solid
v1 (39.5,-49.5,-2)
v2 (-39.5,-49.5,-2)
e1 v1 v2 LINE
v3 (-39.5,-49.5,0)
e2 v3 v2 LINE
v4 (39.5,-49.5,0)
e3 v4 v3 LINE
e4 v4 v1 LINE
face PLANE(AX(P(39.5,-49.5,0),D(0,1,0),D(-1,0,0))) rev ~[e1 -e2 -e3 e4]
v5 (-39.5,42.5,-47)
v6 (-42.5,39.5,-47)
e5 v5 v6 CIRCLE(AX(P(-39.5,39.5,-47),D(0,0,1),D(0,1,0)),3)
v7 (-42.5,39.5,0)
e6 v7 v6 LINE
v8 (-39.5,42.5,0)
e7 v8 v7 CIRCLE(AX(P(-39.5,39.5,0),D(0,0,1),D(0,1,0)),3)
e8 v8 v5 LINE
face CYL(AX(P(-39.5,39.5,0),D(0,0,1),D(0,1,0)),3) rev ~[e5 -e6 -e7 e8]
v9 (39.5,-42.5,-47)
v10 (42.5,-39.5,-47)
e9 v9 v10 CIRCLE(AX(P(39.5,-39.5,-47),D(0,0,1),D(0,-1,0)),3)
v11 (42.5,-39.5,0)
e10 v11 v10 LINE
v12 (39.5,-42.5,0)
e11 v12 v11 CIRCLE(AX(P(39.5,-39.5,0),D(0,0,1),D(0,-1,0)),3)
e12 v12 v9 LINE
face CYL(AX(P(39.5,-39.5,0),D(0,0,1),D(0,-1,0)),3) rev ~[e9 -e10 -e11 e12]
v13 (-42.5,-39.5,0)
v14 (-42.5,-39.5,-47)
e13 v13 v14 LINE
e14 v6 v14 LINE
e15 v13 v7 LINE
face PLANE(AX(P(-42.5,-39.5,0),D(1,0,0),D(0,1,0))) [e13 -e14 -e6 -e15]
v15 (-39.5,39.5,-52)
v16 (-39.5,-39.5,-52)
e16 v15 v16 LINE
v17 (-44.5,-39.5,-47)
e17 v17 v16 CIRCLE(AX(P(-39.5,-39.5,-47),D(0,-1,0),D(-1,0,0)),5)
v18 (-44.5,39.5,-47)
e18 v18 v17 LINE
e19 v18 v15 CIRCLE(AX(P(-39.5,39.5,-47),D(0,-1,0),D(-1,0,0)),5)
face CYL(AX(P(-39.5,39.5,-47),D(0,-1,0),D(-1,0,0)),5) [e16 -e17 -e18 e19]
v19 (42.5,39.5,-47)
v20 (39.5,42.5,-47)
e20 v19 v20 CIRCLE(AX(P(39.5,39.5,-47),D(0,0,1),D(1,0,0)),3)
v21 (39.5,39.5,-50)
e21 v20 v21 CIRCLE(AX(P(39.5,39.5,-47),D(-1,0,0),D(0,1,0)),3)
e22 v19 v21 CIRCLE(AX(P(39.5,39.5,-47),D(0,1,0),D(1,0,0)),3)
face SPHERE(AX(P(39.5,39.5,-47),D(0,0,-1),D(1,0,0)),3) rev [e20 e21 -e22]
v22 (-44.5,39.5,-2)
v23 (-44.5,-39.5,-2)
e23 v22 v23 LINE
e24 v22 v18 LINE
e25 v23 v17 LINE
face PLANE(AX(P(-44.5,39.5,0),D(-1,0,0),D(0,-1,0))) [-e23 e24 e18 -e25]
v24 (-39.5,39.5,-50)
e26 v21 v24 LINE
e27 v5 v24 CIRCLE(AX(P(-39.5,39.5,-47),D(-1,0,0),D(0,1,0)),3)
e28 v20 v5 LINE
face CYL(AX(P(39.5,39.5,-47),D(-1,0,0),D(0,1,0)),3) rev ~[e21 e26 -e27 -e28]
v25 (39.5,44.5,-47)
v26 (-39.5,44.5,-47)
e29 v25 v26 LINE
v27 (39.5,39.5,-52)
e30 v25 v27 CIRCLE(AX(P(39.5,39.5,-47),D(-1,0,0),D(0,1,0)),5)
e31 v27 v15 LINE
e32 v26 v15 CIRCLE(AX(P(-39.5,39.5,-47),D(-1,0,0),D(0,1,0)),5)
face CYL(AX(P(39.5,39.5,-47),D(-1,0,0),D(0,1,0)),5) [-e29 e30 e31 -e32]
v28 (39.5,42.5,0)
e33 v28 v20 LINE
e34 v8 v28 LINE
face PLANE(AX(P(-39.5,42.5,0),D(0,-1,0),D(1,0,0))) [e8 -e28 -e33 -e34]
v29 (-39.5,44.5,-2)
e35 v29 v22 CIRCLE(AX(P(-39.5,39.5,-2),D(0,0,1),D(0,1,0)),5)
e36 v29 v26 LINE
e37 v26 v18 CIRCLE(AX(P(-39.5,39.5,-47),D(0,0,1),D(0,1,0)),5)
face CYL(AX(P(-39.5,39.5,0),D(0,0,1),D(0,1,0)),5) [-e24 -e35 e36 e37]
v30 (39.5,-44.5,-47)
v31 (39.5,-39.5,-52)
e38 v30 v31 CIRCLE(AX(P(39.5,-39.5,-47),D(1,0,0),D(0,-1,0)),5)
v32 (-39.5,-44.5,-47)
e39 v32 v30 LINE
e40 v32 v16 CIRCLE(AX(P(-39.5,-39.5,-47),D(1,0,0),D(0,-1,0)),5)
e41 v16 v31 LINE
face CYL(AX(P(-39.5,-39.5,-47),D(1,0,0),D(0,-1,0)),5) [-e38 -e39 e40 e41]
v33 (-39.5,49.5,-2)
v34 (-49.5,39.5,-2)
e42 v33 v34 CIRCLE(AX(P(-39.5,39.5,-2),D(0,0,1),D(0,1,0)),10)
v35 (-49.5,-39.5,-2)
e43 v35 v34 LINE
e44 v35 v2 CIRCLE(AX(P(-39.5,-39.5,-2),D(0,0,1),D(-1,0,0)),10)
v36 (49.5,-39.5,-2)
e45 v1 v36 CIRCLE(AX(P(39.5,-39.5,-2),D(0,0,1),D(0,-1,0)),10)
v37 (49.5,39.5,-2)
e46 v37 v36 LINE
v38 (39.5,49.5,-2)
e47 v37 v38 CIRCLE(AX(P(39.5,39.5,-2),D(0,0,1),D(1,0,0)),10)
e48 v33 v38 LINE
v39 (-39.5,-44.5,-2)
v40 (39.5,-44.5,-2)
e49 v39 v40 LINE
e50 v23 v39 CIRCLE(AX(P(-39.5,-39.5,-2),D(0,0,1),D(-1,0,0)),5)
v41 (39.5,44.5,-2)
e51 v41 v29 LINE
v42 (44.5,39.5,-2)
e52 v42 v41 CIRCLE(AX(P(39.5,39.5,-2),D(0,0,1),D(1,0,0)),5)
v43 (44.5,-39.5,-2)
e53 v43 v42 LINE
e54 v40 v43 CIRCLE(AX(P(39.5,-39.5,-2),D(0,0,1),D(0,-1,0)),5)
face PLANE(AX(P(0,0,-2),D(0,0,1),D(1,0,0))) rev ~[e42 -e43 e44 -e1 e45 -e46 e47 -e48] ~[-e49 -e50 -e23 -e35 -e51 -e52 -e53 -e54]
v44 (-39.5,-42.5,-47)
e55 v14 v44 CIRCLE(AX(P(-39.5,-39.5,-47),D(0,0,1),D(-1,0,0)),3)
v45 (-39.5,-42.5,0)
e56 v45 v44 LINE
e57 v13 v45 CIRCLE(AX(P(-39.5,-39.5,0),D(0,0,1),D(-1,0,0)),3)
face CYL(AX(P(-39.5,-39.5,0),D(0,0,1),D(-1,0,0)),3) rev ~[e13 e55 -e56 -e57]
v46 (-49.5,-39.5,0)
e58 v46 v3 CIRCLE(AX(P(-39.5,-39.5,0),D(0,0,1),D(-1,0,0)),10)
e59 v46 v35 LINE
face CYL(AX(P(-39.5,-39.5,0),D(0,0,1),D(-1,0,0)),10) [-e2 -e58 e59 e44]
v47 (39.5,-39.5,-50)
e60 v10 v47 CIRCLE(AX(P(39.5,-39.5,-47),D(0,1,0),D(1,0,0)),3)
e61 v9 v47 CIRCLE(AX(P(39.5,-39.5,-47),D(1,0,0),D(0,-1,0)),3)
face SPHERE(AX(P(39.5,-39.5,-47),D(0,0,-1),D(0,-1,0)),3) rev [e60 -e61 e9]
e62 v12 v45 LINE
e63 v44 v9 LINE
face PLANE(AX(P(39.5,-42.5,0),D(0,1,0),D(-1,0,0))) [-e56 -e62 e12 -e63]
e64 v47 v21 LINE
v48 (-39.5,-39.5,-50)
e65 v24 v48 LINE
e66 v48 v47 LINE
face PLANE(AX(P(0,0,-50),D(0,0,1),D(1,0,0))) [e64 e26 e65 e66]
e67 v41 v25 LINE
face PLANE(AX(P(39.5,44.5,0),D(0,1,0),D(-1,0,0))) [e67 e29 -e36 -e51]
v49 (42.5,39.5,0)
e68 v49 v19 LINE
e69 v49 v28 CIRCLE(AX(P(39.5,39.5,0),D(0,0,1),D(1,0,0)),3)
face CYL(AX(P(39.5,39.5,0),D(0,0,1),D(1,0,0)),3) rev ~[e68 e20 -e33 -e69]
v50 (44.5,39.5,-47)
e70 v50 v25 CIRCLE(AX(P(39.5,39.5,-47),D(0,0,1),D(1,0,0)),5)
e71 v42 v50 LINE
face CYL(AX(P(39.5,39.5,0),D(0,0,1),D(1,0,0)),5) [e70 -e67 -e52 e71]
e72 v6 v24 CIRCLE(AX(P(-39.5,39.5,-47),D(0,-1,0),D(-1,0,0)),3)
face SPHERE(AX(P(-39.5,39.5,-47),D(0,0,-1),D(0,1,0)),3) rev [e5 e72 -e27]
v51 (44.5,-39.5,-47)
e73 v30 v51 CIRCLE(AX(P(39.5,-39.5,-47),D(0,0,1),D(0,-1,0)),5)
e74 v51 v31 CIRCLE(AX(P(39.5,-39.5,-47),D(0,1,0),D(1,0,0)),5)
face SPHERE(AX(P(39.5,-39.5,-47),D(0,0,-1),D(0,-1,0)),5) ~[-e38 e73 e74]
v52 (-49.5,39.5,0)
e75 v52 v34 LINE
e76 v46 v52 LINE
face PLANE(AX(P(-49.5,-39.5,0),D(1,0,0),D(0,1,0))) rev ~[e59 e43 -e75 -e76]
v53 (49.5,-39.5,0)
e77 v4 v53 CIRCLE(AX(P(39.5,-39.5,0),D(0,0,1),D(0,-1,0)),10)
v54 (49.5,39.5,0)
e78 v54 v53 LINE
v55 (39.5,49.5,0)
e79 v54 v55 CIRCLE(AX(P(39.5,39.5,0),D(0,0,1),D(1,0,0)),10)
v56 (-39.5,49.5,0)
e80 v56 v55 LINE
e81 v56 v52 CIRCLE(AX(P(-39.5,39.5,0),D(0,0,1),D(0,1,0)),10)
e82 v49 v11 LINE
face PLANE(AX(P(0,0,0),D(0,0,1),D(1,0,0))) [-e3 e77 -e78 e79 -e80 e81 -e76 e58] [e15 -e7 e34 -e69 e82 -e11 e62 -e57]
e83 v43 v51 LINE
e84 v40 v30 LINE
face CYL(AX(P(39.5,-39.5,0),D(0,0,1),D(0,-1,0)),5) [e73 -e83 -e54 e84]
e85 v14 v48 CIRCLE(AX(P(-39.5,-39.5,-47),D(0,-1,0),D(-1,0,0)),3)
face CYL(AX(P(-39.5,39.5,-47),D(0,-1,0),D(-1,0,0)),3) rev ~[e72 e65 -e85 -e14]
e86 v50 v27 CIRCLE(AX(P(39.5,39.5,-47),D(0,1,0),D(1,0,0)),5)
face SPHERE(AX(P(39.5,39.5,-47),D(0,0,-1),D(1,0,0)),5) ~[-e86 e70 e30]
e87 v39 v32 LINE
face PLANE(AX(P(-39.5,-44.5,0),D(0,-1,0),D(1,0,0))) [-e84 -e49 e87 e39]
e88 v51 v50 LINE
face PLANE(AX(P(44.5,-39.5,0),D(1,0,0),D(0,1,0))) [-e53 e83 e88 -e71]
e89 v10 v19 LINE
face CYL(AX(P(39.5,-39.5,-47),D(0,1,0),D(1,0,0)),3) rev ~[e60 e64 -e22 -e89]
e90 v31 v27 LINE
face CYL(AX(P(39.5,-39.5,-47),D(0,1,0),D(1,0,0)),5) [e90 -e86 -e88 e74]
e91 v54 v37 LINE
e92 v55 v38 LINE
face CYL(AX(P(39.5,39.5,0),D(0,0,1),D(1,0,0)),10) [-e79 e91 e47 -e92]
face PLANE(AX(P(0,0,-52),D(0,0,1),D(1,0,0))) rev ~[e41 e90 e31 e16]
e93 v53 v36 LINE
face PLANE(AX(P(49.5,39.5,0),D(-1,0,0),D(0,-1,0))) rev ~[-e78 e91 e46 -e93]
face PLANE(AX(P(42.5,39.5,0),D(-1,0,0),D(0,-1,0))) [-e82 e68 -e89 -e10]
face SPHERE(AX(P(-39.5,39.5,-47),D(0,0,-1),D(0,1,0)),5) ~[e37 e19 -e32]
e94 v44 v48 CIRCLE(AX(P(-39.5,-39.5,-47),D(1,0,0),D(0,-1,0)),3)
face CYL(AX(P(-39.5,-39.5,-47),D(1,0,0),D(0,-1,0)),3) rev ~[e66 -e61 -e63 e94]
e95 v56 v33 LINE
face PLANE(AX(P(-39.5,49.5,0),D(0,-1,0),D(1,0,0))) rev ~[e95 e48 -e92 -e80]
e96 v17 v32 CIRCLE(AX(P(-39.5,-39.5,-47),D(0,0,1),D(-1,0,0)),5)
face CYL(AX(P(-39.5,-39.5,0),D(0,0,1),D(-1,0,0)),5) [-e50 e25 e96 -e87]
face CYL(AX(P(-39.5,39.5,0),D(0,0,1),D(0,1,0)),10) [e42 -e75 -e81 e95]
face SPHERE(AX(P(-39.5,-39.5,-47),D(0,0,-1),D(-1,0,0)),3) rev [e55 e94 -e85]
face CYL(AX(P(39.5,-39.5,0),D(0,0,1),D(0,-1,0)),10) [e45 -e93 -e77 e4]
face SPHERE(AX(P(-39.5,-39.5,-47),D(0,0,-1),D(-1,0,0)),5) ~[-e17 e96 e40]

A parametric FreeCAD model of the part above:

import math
import FreeCAD as App
import Part
import Sketcher
from FreeCAD import Vector
Q = App.Units.Quantity


def edges_at(feature, points):
    """Names of the edges that pass closest to the given points."""
    edges = feature.Shape.Edges
    near = lambda p: min(range(len(edges)), key=lambda i: edges[i].distToShape(Part.Vertex(*p))[0])
    return sorted({f"Edge{near(p) + 1}" for p in points})

doc = App.newDocument("Part")
body = doc.addObject("PartDesign::Body", "Body")

sketch1 = body.newObject("Sketcher::SketchObject", "Sketch")
sketch1.AttachmentSupport = (doc.getObject("XY_Plane"), [""])
sketch1.MapMode = "FlatFace"
sketch1.addGeometry([
    Part.ArcOfCircle(Part.Circle(Vector(-40, -40, 0), Vector(0, 0, 1), 5), math.radians(180), math.radians(270)),
    Part.LineSegment(Vector(-40, -44, 0), Vector(40, -44, 0)),
    Part.ArcOfCircle(Part.Circle(Vector(40, -40, 0), Vector(0, 0, 1), 5), math.radians(-90), math.radians(0)),
    Part.LineSegment(Vector(44, -40, 0), Vector(44, 40, 0)),
    Part.ArcOfCircle(Part.Circle(Vector(40, 40, 0), Vector(0, 0, 1), 5), math.radians(0), math.radians(90)),
    Part.LineSegment(Vector(40, 44, 0), Vector(-40, 44, 0)),
    Part.ArcOfCircle(Part.Circle(Vector(-40, 40, 0), Vector(0, 0, 1), 5), math.radians(90), math.radians(180)),
    Part.LineSegment(Vector(-44, 40, 0), Vector(-44, -40, 0)),
], False)
sketch1.addConstraint([
    Sketcher.Constraint("Tangent", 0, 2, 1, 1),
    Sketcher.Constraint("Tangent", 1, 2, 2, 1),
    Sketcher.Constraint("Tangent", 2, 2, 3, 1),
    Sketcher.Constraint("Tangent", 3, 2, 4, 1),
    Sketcher.Constraint("Tangent", 4, 2, 5, 1),
    Sketcher.Constraint("Tangent", 5, 2, 6, 1),
    Sketcher.Constraint("Tangent", 6, 2, 7, 1),
    Sketcher.Constraint("Tangent", 7, 2, 0, 1),
    Sketcher.Constraint("Horizontal", 1),
    Sketcher.Constraint("Vertical", 3),
    Sketcher.Constraint("Horizontal", 5),
    Sketcher.Constraint("Vertical", 7),
    Sketcher.Constraint("Equal", 0, 2),
    Sketcher.Constraint("Equal", 2, 4),
    Sketcher.Constraint("Equal", 4, 6),
    Sketcher.Constraint("Symmetric", 0, 3, 4, 3, -1, 1),
    Sketcher.Constraint("Equal", 5, 3),
    Sketcher.Constraint("Radius", 0, Q("5 mm")),
    Sketcher.Constraint("DistanceX", 1, 1, 1, 2, Q("79 mm")),
])
pad1 = body.newObject("PartDesign::Pad", "Pad")
pad1.Profile = sketch1
pad1.Length = 52
pad1.Reversed = True

sketch2 = body.newObject("Sketcher::SketchObject", "Sketch001")
sketch2.AttachmentSupport = (doc.getObject("XY_Plane"), [""])
sketch2.MapMode = "FlatFace"
sketch2.addGeometry([
    Part.LineSegment(Vector(39.5, 42.5, 0), Vector(-39.5, 42.5, 0)),
    Part.ArcOfCircle(Part.Circle(Vector(-39.5, 39.5, 0), Vector(0, 0, 1), 3), math.radians(90), math.radians(180)),
    Part.LineSegment(Vector(-42.5, 39.5, 0), Vector(-42.5, -39.5, 0)),
    Part.ArcOfCircle(Part.Circle(Vector(-39.5, -39.5, 0), Vector(0, 0, 1), 3), math.radians(180), math.radians(270)),
    Part.LineSegment(Vector(-39.5, -42.5, 0), Vector(39.5, -42.5, 0)),
    Part.ArcOfCircle(Part.Circle(Vector(39.5, -39.5, 0), Vector(0, 0, 1), 3), math.radians(-90), math.radians(0)),
    Part.LineSegment(Vector(42.5, -39.5, 0), Vector(42.5, 39.5, 0)),
    Part.ArcOfCircle(Part.Circle(Vector(39.5, 39.5, 0), Vector(0, 0, 1), 3), math.radians(0), math.radians(90)),
], False)
sketch2.addConstraint([
    Sketcher.Constraint("Tangent", 0, 2, 1, 1),
    Sketcher.Constraint("Tangent", 1, 2, 2, 1),
    Sketcher.Constraint("Tangent", 2, 2, 3, 1),
    Sketcher.Constraint("Tangent", 3, 2, 4, 1),
    Sketcher.Constraint("Tangent", 4, 2, 5, 1),
    Sketcher.Constraint("Tangent", 5, 2, 6, 1),
    Sketcher.Constraint("Tangent", 6, 2, 7, 1),
    Sketcher.Constraint("Tangent", 7, 2, 0, 1),
    Sketcher.Constraint("Horizontal", 0),
    Sketcher.Constraint("Vertical", 2),
    Sketcher.Constraint("Horizontal", 4),
    Sketcher.Constraint("Vertical", 6),
    Sketcher.Constraint("Equal", 1, 3),
    Sketcher.Constraint("Equal", 3, 5),
    Sketcher.Constraint("Equal", 5, 7),
    Sketcher.Constraint("Symmetric", 1, 3, 5, 3, -1, 1),
    Sketcher.Constraint("Equal", 4, 2),
    Sketcher.Constraint("Radius", 1, Q("3 mm")),
    Sketcher.Constraint("DistanceX", 0, 2, 0, 1, Q("79 mm")),
])
pocket1 = body.newObject("PartDesign::Pocket", "Pocket")
pocket1.Profile = sketch2
pocket1.Length = 50

sketch3 = body.newObject("Sketcher::SketchObject", "Sketch002")
sketch3.AttachmentSupport = (doc.getObject("XY_Plane"), [""])
sketch3.MapMode = "FlatFace"
sketch3.addGeometry([
    Part.LineSegment(Vector(-50, 40, 0), Vector(-50, -40, 0)),
    Part.ArcOfCircle(Part.Circle(Vector(-40, -40, 0), Vector(0, 0, 1), 10), math.radians(180), math.radians(270)),
    Part.LineSegment(Vector(-40, -50, 0), Vector(40, -50, 0)),
    Part.ArcOfCircle(Part.Circle(Vector(40, -40, 0), Vector(0, 0, 1), 10), math.radians(-90), math.radians(0)),
    Part.LineSegment(Vector(50, -40, 0), Vector(50, 40, 0)),
    Part.ArcOfCircle(Part.Circle(Vector(40, 40, 0), Vector(0, 0, 1), 10), math.radians(0), math.radians(90)),
    Part.LineSegment(Vector(40, 50, 0), Vector(-40, 50, 0)),
    Part.ArcOfCircle(Part.Circle(Vector(-40, 40, 0), Vector(0, 0, 1), 10), math.radians(90), math.radians(180)),
    Part.LineSegment(Vector(40, -44, 0), Vector(-40, -44, 0)),
    Part.ArcOfCircle(Part.Circle(Vector(-40, -40, 0), Vector(0, 0, 1), 5), math.radians(180), math.radians(270)),
    Part.LineSegment(Vector(-44, -40, 0), Vector(-44, 40, 0)),
    Part.ArcOfCircle(Part.Circle(Vector(-40, 40, 0), Vector(0, 0, 1), 5), math.radians(90), math.radians(180)),
    Part.LineSegment(Vector(-40, 44, 0), Vector(40, 44, 0)),
    Part.ArcOfCircle(Part.Circle(Vector(40, 40, 0), Vector(0, 0, 1), 5), math.radians(0), math.radians(90)),
    Part.LineSegment(Vector(44, 40, 0), Vector(44, -40, 0)),
    Part.ArcOfCircle(Part.Circle(Vector(40, -40, 0), Vector(0, 0, 1), 5), math.radians(-90), math.radians(0)),
], False)
sketch3.addConstraint([
    Sketcher.Constraint("Tangent", 0, 2, 1, 1),
    Sketcher.Constraint("Tangent", 1, 2, 2, 1),
    Sketcher.Constraint("Tangent", 2, 2, 3, 1),
    Sketcher.Constraint("Tangent", 3, 2, 4, 1),
    Sketcher.Constraint("Tangent", 4, 2, 5, 1),
    Sketcher.Constraint("Tangent", 5, 2, 6, 1),
    Sketcher.Constraint("Tangent", 6, 2, 7, 1),
    Sketcher.Constraint("Tangent", 7, 2, 0, 1),
    Sketcher.Constraint("Tangent", 8, 2, 9, 2),
    Sketcher.Constraint("Tangent", 9, 1, 10, 1),
    Sketcher.Constraint("Tangent", 10, 2, 11, 2),
    Sketcher.Constraint("Tangent", 11, 1, 12, 1),
    Sketcher.Constraint("Tangent", 12, 2, 13, 2),
    Sketcher.Constraint("Tangent", 13, 1, 14, 1),
    Sketcher.Constraint("Tangent", 14, 2, 15, 2),
    Sketcher.Constraint("Tangent", 15, 1, 8, 1),
    Sketcher.Constraint("Vertical", 0),
    Sketcher.Constraint("Horizontal", 2),
    Sketcher.Constraint("Vertical", 4),
    Sketcher.Constraint("Horizontal", 6),
    Sketcher.Constraint("Horizontal", 8),
    Sketcher.Constraint("Vertical", 10),
    Sketcher.Constraint("Horizontal", 12),
    Sketcher.Constraint("Vertical", 14),
    Sketcher.Constraint("Coincident", 9, 3, 1, 3),
    Sketcher.Constraint("Coincident", 11, 3, 7, 3),
    Sketcher.Constraint("Coincident", 13, 3, 5, 3),
    Sketcher.Constraint("Equal", 1, 3),
    Sketcher.Constraint("Equal", 3, 5),
    Sketcher.Constraint("Equal", 5, 7),
    Sketcher.Constraint("Equal", 13, 15),
    Sketcher.Constraint("Symmetric", 1, 3, 5, 3, -1, 1),
    Sketcher.Constraint("Equal", 12, 0),
    Sketcher.Constraint("Radius", 9, Q("5 mm")),
    Sketcher.Constraint("Radius", 1, Q("10 mm")),
    Sketcher.Constraint("DistanceX", 0, 2, 3, 3, Q("89 mm")),
])
pad2 = body.newObject("PartDesign::Pad", "Pad001")
pad2.Profile = sketch3
pad2.Length = 2
pad2.Reversed = True
doc.recompute()

fillet = body.newObject("PartDesign::Fillet", "Fillet")
fillet.Base = (pad2, edges_at(pad2, [
    (43.035, 43.035, -52),
    (44.5, 0, -52),
    (43.035, -43.035, -52),
    (0, -44.5, -52),
    (-43.035, -43.035, -52),
    (-44.5, 0, -52),
    (-43.035, 43.035, -52),
    (0, 44.5, -52),
]))
fillet.Radius = 5
doc.recompute()

fillet2 = body.newObject("PartDesign::Fillet", "Fillet001")
fillet2.Base = (fillet, edges_at(fillet, [
    (-41.621, -41.621, -50),
    (-42.5, 0, -50),
    (-41.621, 41.621, -50),
    (0, 42.5, -50),
    (41.621, 41.621, -50),
    (42.5, 0, -50),
    (41.621, -41.621, -50),
    (0, -42.5, -50),
]))
fillet2.Radius = 3

doc.recompute()
